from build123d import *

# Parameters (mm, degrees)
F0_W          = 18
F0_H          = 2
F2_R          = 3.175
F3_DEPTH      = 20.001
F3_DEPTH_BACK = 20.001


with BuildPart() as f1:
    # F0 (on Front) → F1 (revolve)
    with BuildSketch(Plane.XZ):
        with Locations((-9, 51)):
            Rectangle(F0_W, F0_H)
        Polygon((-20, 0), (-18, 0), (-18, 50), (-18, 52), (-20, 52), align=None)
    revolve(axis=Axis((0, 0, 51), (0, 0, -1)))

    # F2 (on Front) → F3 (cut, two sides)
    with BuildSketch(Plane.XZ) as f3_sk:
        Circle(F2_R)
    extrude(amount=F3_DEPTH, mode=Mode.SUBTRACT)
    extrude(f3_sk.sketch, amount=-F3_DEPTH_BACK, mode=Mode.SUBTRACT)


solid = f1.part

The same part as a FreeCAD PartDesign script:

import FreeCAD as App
import Part
import Sketcher
from FreeCAD import Vector

doc = App.newDocument("Part")
body = doc.addObject("PartDesign::Body", "Body")

# Sketch on XZ plane
sketch1 = body.newObject("Sketcher::SketchObject", "Sketch")
sketch1.AttachmentSupport = (doc.getObject("XZ_Plane"), [""])
sketch1.MapMode = "FlatFace"
sketch1.addGeometry(Part.LineSegment(Vector(-18, 50, 0), Vector(0, 50, 0)), False)
sketch1.addGeometry(Part.LineSegment(Vector(0, 50, 0), Vector(0, 52, 0)), False)
sketch1.addGeometry(Part.LineSegment(Vector(0, 52, 0), Vector(-20, 52, 0)), False)
sketch1.addGeometry(Part.LineSegment(Vector(-20, 52, 0), Vector(-20, 0, 0)), False)
sketch1.addGeometry(Part.LineSegment(Vector(-20, 0, 0), Vector(-18, 0, 0)), False)
sketch1.addGeometry(Part.LineSegment(Vector(-18, 0, 0), Vector(-18, 50, 0)), False)
sketch1.addConstraint(Sketcher.Constraint("Coincident", 0, 2, 1, 1))
sketch1.addConstraint(Sketcher.Constraint("Coincident", 1, 2, 2, 1))
sketch1.addConstraint(Sketcher.Constraint("Coincident", 2, 2, 3, 1))
sketch1.addConstraint(Sketcher.Constraint("Coincident", 3, 2, 4, 1))
sketch1.addConstraint(Sketcher.Constraint("Coincident", 4, 2, 5, 1))
sketch1.addConstraint(Sketcher.Constraint("Coincident", 5, 2, 0, 1))
sketch1.addConstraint(Sketcher.Constraint("Horizontal", 0))
sketch1.addConstraint(Sketcher.Constraint("Vertical", 1))
sketch1.addConstraint(Sketcher.Constraint("Horizontal", 2))
sketch1.addConstraint(Sketcher.Constraint("Vertical", 3))
sketch1.addConstraint(Sketcher.Constraint("Horizontal", 4))
sketch1.addConstraint(Sketcher.Constraint("Vertical", 5))
sketch1.addConstraint(Sketcher.Constraint("PointOnObject", 0, 2, -2))
sketch1.addConstraint(Sketcher.Constraint("PointOnObject", 3, 2, -1))
sketch1.addConstraint(Sketcher.Constraint("Equal", 4, 1))
sketch1.addConstraint(Sketcher.Constraint("DistanceX", 0, 1, 0, 2, 18.0))
sketch1.addConstraint(Sketcher.Constraint("DistanceX", 2, 2, 2, 1, 20.0))
sketch1.addConstraint(Sketcher.Constraint("DistanceY", 3, 2, 3, 1, 52.0))
revolution = body.newObject("PartDesign::Revolution", "Revolution")
revolution.Profile = sketch1
revolution.ReferenceAxis = (sketch1, ["V_Axis"])
revolution.Angle = 360

# Sketch on XZ plane
sketch2 = body.newObject("Sketcher::SketchObject", "Sketch001")
sketch2.AttachmentSupport = (doc.getObject("XZ_Plane"), [""])
sketch2.MapMode = "FlatFace"
sketch2.addGeometry(Part.Circle(Vector(0, 0, 0), Vector(0, 0, 1), 3.2), False)
sketch2.addConstraint(Sketcher.Constraint("Coincident", 0, 3, -1, 1))
sketch2.addConstraint(Sketcher.Constraint("Diameter", 0, 6.35))
pocket1 = body.newObject("PartDesign::Pocket", "Pocket")
pocket1.Profile = sketch2
pocket1.Type = "ThroughAll"
pocket1.Midplane = True

doc.recompute()
